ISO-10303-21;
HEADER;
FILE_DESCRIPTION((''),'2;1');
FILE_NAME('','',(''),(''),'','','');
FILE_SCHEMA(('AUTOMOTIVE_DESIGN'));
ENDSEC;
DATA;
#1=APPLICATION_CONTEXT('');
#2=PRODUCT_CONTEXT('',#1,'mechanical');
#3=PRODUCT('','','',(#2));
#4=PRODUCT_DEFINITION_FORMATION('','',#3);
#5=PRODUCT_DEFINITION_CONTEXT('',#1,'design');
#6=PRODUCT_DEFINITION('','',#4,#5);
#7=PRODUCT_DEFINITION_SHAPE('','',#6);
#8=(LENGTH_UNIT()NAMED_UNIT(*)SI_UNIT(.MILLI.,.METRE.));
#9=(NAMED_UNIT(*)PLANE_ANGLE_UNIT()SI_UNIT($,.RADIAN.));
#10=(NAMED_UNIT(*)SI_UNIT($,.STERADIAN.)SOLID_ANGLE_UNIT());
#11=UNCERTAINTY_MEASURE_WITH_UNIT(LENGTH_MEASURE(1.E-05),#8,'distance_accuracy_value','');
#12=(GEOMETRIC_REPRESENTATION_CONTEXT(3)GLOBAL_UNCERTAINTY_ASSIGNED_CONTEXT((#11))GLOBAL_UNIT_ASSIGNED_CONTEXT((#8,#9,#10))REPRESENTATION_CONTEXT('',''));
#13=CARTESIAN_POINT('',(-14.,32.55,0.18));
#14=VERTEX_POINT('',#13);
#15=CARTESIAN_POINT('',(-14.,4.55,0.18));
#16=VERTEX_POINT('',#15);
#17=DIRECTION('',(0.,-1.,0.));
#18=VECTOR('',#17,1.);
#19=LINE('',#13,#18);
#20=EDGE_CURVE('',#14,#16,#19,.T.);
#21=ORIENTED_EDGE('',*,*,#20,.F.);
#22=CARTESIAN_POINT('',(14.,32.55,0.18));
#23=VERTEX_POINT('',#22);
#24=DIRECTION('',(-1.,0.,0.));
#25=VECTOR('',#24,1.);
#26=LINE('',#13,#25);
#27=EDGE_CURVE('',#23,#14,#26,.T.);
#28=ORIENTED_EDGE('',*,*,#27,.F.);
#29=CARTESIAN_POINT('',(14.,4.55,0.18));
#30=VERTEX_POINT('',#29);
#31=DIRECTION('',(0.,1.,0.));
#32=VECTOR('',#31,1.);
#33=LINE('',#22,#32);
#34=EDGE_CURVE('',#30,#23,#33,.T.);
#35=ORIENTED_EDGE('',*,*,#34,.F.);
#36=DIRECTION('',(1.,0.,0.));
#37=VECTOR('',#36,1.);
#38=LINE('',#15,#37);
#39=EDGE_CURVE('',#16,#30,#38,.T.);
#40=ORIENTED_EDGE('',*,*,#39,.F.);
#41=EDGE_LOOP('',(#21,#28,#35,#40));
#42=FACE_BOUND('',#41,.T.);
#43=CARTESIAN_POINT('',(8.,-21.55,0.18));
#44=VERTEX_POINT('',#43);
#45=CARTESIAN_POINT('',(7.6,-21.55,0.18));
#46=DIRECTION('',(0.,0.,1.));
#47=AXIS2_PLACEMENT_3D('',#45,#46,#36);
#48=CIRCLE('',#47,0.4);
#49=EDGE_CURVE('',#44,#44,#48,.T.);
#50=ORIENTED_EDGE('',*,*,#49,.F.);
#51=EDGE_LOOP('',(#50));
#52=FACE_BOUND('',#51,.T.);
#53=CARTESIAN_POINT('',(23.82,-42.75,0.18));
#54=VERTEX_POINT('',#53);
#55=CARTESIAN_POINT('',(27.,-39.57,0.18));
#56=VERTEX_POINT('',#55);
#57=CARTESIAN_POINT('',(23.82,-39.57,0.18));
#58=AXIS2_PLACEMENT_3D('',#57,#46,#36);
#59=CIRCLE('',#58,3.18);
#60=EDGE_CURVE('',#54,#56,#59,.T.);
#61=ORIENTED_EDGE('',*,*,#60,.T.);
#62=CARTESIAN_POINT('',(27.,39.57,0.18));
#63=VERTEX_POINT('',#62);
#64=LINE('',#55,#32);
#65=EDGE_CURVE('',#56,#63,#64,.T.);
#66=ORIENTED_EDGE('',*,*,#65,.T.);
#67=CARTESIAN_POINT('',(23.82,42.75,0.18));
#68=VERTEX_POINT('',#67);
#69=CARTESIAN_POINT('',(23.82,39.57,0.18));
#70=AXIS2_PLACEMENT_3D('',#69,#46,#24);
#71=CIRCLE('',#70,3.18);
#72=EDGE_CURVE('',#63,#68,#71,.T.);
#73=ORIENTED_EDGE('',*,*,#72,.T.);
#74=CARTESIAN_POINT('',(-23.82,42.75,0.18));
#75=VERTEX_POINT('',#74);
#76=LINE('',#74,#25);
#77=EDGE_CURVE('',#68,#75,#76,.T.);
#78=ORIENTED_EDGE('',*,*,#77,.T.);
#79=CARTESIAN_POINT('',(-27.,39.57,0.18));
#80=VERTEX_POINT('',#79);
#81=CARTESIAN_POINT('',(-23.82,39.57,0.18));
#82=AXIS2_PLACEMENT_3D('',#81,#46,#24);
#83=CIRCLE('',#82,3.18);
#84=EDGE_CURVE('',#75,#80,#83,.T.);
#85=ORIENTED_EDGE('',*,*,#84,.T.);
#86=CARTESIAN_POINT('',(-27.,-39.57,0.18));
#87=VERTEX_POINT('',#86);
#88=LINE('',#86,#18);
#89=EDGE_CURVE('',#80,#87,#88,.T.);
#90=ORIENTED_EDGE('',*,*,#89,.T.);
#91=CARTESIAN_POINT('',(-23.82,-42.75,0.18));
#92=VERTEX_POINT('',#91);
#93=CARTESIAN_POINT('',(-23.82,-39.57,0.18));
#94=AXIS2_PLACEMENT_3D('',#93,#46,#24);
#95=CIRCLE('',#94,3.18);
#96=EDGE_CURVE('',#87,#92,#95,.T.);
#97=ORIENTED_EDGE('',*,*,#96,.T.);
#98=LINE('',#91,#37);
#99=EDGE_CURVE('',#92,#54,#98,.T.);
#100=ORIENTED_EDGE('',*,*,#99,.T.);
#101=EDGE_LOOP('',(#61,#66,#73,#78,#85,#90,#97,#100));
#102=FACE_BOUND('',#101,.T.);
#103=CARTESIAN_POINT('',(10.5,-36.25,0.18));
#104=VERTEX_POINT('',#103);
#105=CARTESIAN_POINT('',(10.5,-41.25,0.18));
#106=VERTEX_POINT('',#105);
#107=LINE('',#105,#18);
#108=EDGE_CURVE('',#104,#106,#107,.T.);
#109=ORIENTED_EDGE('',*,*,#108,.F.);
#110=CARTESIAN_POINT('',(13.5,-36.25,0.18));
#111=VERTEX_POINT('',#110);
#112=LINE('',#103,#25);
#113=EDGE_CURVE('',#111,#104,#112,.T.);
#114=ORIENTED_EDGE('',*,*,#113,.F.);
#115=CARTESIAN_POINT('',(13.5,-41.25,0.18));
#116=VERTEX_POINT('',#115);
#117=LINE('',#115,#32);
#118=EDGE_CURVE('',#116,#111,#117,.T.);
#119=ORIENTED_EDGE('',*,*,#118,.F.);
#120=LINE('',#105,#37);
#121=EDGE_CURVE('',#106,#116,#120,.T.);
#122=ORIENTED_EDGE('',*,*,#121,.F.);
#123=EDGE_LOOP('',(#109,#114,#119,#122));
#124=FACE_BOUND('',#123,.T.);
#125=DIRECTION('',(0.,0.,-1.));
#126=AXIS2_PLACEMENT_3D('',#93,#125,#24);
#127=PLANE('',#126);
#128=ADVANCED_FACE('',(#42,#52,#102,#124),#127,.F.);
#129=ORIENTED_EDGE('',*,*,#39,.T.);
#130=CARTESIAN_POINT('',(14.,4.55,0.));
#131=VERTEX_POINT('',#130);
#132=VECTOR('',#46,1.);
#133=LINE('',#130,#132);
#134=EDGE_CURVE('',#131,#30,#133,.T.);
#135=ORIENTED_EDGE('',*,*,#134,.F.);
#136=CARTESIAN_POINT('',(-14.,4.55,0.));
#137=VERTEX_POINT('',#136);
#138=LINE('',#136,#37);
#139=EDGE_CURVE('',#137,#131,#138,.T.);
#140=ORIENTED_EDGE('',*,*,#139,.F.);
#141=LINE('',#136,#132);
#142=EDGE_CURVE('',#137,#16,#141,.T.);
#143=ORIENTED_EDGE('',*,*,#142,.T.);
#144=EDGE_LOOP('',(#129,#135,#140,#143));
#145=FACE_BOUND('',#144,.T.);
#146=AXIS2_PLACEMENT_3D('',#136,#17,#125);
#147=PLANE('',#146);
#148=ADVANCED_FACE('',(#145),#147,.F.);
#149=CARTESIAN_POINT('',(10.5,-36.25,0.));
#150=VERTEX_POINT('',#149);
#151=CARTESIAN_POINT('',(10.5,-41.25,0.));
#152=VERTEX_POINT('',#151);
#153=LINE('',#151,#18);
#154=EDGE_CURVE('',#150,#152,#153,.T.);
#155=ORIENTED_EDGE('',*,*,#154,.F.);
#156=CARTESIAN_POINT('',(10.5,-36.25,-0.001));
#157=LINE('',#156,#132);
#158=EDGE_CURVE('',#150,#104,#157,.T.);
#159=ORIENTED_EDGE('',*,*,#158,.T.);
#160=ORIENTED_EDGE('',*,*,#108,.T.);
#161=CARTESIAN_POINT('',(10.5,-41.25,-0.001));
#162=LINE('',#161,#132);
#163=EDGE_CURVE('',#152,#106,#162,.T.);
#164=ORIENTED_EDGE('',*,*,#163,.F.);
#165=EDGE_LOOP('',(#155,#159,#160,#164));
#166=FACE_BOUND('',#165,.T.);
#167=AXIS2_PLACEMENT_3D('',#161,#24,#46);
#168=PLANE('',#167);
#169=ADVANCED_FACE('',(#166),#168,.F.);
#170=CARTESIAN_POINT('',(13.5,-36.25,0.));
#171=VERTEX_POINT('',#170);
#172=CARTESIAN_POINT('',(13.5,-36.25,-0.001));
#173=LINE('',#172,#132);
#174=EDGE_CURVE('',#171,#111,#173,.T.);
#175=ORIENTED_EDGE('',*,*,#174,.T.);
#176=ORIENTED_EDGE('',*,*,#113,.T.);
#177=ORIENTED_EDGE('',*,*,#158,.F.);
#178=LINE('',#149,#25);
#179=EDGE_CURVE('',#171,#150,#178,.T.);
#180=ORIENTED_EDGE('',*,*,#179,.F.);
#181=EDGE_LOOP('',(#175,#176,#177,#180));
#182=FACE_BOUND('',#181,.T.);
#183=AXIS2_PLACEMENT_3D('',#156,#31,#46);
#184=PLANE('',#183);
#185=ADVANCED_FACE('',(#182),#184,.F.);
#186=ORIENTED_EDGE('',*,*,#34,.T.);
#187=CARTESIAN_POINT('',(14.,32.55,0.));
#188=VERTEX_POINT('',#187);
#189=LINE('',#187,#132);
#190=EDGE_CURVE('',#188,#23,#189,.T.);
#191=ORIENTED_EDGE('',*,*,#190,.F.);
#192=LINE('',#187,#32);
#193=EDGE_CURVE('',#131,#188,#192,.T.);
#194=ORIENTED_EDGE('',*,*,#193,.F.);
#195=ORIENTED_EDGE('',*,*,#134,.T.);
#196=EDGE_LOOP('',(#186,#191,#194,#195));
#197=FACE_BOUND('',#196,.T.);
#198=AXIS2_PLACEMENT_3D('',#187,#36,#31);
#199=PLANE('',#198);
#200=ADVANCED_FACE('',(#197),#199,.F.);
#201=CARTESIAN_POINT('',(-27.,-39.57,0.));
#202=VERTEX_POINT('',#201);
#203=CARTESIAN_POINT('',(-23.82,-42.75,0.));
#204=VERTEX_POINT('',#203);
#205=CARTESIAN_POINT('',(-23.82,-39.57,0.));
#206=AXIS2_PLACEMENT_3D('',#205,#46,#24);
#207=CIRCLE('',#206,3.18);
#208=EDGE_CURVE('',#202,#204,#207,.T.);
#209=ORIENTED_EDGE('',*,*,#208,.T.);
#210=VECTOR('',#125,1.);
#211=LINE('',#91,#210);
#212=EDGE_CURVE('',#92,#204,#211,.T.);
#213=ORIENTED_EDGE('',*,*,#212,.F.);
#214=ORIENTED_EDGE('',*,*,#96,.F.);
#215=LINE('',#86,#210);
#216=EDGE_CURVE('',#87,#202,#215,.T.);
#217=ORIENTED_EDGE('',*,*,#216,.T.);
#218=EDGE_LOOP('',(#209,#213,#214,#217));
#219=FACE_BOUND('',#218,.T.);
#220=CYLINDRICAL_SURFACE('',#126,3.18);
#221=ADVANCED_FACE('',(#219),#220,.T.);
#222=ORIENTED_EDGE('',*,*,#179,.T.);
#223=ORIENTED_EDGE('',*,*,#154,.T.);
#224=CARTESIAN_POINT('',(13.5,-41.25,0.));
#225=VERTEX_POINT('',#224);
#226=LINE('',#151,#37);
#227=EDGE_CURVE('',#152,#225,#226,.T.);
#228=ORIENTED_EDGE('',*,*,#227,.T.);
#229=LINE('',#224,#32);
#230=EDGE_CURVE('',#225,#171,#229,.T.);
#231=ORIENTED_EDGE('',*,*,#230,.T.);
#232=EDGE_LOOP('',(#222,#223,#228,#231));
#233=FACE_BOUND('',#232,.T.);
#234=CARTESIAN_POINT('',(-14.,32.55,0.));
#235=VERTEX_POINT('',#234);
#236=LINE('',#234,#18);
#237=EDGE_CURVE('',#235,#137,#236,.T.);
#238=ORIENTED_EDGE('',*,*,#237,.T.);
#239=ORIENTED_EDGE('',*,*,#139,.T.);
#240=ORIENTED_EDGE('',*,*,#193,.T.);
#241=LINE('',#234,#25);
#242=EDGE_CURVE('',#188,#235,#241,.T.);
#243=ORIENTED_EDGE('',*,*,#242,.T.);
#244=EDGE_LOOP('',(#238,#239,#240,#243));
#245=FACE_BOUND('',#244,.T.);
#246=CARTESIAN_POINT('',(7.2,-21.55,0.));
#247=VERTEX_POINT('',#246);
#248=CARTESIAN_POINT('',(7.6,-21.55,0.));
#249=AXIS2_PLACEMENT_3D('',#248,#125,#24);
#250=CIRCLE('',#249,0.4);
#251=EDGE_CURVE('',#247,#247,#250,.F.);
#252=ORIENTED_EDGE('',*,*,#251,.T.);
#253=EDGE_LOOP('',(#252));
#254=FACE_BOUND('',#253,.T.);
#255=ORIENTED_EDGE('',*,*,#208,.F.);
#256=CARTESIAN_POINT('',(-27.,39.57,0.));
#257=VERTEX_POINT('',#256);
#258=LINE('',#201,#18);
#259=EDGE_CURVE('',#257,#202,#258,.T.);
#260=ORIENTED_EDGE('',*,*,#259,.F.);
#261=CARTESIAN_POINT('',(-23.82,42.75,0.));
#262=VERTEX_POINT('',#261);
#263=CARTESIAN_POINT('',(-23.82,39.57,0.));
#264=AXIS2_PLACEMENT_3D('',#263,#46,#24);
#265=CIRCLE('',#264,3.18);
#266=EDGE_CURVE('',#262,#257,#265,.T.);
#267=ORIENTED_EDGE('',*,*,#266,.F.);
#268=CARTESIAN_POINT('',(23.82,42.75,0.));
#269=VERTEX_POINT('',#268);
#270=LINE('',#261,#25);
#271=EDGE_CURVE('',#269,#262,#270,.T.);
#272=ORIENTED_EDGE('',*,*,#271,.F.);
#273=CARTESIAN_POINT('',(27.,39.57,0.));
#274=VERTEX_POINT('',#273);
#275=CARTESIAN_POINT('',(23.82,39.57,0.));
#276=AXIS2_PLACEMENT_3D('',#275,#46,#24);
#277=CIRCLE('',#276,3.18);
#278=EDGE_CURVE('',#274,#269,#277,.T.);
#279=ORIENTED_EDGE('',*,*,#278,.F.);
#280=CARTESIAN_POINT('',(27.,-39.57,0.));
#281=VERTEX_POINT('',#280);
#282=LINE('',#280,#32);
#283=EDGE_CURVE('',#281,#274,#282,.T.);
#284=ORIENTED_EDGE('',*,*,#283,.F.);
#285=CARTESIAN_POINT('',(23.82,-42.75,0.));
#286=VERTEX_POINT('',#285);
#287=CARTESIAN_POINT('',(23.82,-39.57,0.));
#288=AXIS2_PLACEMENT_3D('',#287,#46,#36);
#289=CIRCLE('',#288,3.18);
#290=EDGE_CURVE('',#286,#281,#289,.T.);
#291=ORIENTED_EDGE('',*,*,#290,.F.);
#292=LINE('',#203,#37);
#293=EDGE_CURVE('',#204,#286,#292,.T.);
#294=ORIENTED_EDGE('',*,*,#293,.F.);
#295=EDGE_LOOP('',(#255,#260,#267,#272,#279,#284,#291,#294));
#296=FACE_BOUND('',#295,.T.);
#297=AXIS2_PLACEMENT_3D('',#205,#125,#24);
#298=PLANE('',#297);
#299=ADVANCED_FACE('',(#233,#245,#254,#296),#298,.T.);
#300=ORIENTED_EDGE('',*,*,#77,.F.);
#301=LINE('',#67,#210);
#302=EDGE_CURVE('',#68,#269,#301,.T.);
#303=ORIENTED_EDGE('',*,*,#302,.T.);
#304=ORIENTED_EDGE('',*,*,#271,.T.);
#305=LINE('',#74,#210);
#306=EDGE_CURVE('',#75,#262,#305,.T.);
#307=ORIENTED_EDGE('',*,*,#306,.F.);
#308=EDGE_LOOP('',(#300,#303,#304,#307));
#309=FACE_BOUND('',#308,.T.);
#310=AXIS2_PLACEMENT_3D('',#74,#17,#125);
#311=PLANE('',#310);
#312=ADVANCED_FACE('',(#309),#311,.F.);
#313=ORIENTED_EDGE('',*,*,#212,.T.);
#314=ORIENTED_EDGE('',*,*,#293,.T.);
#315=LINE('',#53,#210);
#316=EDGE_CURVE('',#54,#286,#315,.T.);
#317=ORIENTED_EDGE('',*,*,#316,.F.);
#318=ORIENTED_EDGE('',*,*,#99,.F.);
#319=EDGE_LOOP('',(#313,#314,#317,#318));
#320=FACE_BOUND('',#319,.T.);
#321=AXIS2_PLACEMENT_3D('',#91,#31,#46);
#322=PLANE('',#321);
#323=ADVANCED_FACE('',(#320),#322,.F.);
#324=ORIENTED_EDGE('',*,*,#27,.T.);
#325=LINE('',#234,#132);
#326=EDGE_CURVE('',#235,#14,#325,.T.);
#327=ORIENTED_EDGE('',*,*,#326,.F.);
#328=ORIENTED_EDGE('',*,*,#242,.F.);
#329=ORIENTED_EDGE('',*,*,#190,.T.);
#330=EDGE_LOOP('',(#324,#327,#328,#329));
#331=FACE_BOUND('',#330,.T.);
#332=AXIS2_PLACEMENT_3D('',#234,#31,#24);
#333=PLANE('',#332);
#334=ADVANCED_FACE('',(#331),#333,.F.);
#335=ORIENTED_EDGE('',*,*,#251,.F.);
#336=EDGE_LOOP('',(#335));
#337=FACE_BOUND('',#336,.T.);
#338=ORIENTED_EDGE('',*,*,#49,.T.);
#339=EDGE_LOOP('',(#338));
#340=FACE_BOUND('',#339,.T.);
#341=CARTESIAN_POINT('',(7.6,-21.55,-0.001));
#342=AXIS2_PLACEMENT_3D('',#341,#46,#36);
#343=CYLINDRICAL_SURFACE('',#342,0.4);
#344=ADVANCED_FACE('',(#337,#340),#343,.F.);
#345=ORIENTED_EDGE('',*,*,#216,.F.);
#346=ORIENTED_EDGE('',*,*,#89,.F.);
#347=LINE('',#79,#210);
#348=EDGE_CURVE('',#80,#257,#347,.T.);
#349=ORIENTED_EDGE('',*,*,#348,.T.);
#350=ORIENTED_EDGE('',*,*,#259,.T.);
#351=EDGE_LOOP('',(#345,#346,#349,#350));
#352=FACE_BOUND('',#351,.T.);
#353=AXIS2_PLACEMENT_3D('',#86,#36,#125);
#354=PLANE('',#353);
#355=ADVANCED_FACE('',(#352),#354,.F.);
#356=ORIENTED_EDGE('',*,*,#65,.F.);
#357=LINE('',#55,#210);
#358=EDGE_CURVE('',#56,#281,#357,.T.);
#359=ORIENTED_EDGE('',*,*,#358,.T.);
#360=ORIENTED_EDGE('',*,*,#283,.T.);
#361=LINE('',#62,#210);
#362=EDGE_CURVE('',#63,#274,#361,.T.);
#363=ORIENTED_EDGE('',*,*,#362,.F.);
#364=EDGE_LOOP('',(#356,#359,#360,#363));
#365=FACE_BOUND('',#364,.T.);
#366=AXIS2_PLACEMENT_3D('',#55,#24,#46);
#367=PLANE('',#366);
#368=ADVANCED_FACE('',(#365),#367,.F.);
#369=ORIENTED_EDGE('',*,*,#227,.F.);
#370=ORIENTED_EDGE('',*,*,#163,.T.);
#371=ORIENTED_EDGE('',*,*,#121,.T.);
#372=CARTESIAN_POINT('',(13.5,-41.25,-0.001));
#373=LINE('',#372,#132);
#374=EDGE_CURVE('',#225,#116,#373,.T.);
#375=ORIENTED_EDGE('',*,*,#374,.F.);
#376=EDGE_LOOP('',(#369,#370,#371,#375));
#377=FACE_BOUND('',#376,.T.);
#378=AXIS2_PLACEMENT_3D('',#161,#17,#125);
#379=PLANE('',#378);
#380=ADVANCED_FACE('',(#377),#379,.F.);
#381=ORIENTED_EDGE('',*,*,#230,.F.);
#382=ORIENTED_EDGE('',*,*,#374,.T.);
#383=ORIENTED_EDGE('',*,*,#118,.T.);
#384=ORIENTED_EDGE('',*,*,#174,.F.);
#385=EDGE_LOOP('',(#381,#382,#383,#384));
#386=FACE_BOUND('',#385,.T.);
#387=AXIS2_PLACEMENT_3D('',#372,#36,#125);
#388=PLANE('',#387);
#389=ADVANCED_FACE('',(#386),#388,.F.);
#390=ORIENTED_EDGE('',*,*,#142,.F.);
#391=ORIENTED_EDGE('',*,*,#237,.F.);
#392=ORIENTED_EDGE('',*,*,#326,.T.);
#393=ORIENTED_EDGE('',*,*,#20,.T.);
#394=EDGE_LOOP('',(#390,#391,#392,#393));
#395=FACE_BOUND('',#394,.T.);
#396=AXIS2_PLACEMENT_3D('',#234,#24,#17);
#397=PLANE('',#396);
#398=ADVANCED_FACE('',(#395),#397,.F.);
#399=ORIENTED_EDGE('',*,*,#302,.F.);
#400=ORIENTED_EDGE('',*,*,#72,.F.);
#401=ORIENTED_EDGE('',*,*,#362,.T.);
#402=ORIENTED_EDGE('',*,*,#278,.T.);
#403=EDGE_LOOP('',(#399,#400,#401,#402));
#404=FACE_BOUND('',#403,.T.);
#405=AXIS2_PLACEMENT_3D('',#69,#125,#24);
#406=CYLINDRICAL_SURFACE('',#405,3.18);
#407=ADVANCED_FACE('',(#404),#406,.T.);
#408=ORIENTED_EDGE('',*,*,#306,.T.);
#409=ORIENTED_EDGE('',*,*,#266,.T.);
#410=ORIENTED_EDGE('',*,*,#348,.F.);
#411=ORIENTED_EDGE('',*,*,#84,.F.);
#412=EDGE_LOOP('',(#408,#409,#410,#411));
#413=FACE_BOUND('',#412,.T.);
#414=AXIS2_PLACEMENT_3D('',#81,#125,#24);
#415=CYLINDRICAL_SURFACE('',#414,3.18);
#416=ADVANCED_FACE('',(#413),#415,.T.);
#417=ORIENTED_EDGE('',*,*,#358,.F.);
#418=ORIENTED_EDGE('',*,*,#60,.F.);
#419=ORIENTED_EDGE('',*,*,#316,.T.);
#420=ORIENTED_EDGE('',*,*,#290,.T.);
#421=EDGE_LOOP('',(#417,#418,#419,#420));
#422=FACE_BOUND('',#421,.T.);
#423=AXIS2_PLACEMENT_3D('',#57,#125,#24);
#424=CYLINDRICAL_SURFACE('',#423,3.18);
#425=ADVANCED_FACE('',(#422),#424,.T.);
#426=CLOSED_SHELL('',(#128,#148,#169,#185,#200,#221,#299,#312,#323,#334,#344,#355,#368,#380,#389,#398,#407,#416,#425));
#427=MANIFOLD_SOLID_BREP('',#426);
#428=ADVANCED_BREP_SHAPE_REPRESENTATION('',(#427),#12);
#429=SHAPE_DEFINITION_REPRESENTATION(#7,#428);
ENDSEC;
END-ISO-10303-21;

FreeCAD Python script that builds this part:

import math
import FreeCAD as App
import Part
import Sketcher

V = App.Vector
Q = App.Units.Quantity

doc = App.newDocument("Part")
body = doc.addObject("PartDesign::Body", "Body")

# Sketch on XY plane
sketch1 = body.newObject("Sketcher::SketchObject", "Sketch")
sketch1.AttachmentSupport = (doc.getObject("XY_Plane"), [""])
sketch1.MapMode = "FlatFace"
sketch1.addGeometry([
    Part.LineSegment(V(-23.8, -42.8, 0), V(23.8, -42.8, 0)),  # 0
    Part.ArcOfCircle(Part.Circle(V(23.8, -39.6, 0), V(0, 0, 1), 3.2), math.radians(-90), math.radians(0)),  # 1
    Part.LineSegment(V(27, -39.6, 0), V(27, 39.6, 0)),  # 2
    Part.ArcOfCircle(Part.Circle(V(23.8, 39.6, 0), V(0, 0, 1), 3.2), math.radians(0), math.radians(90)),  # 3
    Part.LineSegment(V(23.8, 42.8, 0), V(-23.8, 42.8, 0)),  # 4
    Part.ArcOfCircle(Part.Circle(V(-23.8, 39.6, 0), V(0, 0, 1), 3.2), math.radians(90), math.radians(180)),  # 5
    Part.LineSegment(V(-27, 39.6, 0), V(-27, -39.6, 0)),  # 6
    Part.ArcOfCircle(Part.Circle(V(-23.8, -39.6, 0), V(0, 0, 1), 3.2), math.radians(-180), math.radians(-90)),  # 7
], False)
sketch1.addConstraint([
    Sketcher.Constraint("Tangent", 0, 2, 1, 1),
    Sketcher.Constraint("Tangent", 1, 2, 2, 1),
    Sketcher.Constraint("Tangent", 2, 2, 3, 1),
    Sketcher.Constraint("Tangent", 3, 2, 4, 1),
    Sketcher.Constraint("Tangent", 4, 2, 5, 1),
    Sketcher.Constraint("Tangent", 5, 2, 6, 1),
    Sketcher.Constraint("Tangent", 6, 2, 7, 1),
    Sketcher.Constraint("Tangent", 7, 2, 0, 1),
    Sketcher.Constraint("Horizontal", 0),
    Sketcher.Constraint("Vertical", 2),
    Sketcher.Constraint("Horizontal", 4),
    Sketcher.Constraint("Vertical", 6),
    Sketcher.Constraint("Equal", 1, 3),
    Sketcher.Constraint("Equal", 3, 5),
    Sketcher.Constraint("Equal", 5, 7),
    Sketcher.Constraint("Symmetric", 1, 3, 5, 3, -1, 1),
    Sketcher.Constraint("Radius", 1, Q("3.18 mm")),
    Sketcher.Constraint("DistanceX", -1, 1, 1, 2, Q("27 mm")),
    Sketcher.Constraint("DistanceY", 2, 1, 2, 2, Q("79.14 mm")),
])
pad1 = body.newObject("PartDesign::Pad", "Pad")
pad1.Profile = sketch1
pad1.Length = 0.18

# Sketch on XY plane
sketch2 = body.newObject("Sketcher::SketchObject", "Sketch001")
sketch2.AttachmentSupport = (doc.getObject("XY_Plane"), [""])
sketch2.MapMode = "FlatFace"
sketch2.AttachmentOffset = App.Placement(V(0, 0, 0.18), App.Rotation())
sketch2.addGeometry(Part.Circle(V(7.6, -21.55, 0), V(0, 0, 1), 0.4), False)
sketch2.addConstraint([
    Sketcher.Constraint("Diameter", 0, Q("0.8 mm")),
    Sketcher.Constraint("DistanceX", -1, 1, 0, 3, Q("7.6 mm")),
    Sketcher.Constraint("DistanceY", 0, 3, -1, 1, Q("21.55 mm")),
])
pocket1 = body.newObject("PartDesign::Pocket", "Pocket")
pocket1.Profile = sketch2
pocket1.Type = "UpToFirst"

# Sketch on XY plane
sketch3 = body.newObject("Sketcher::SketchObject", "Sketch002")
sketch3.AttachmentSupport = (doc.getObject("XY_Plane"), [""])
sketch3.MapMode = "FlatFace"
sketch3.AttachmentOffset = App.Placement(V(0, 0, 0.18), App.Rotation())
sketch3.addGeometry([
    Part.LineSegment(V(10.5, -36.2, 0), V(10.5, -41.2, 0)),
    Part.LineSegment(V(10.5, -41.2, 0), V(13.5, -41.2, 0)),
    Part.LineSegment(V(13.5, -41.2, 0), V(13.5, -36.2, 0)),
    Part.LineSegment(V(13.5, -36.2, 0), V(10.5, -36.2, 0)),
], False)
sketch3.addConstraint([
    Sketcher.Constraint("Coincident", 0, 2, 1, 1),
    Sketcher.Constraint("Coincident", 1, 2, 2, 1),
    Sketcher.Constraint("Coincident", 2, 2, 3, 1),
    Sketcher.Constraint("Coincident", 3, 2, 0, 1),
    Sketcher.Constraint("Vertical", 0),
    Sketcher.Constraint("Horizontal", 1),
    Sketcher.Constraint("Vertical", 2),
    Sketcher.Constraint("Horizontal", 3),
    Sketcher.Constraint("DistanceX", 1, 1, 1, 2, Q("3 mm")),
    Sketcher.Constraint("DistanceY", 0, 2, 0, 1, Q("5 mm")),
    Sketcher.Constraint("DistanceX", -1, 1, 0, 2, Q("10.5 mm")),
    Sketcher.Constraint("DistanceY", 0, 2, -1, 1, Q("41.25 mm")),
])
pocket2 = body.newObject("PartDesign::Pocket", "Pocket001")
pocket2.Profile = sketch3
pocket2.Type = "UpToFirst"

# Sketch on XY plane
sketch4 = body.newObject("Sketcher::SketchObject", "Sketch003")
sketch4.AttachmentSupport = (doc.getObject("XY_Plane"), [""])
sketch4.MapMode = "FlatFace"
sketch4.AttachmentOffset = App.Placement(V(0, 0, 0.18), App.Rotation())
sketch4.addGeometry([
    Part.LineSegment(V(-14, 33, 0), V(-14, 5, 0)),
    Part.LineSegment(V(-14, 5, 0), V(14, 5, 0)),
    Part.LineSegment(V(14, 5, 0), V(14, 33, 0)),
    Part.LineSegment(V(14, 33, 0), V(-14, 33, 0)),
], False)
sketch4.addConstraint([
    Sketcher.Constraint("Coincident", 0, 2, 1, 1),
    Sketcher.Constraint("Coincident", 1, 2, 2, 1),
    Sketcher.Constraint("Coincident", 2, 2, 3, 1),
    Sketcher.Constraint("Coincident", 3, 2, 0, 1),
    Sketcher.Constraint("Vertical", 0),
    Sketcher.Constraint("Horizontal", 1),
    Sketcher.Constraint("Vertical", 2),
    Sketcher.Constraint("Horizontal", 3),
    Sketcher.Constraint("Equal", 3, 0),
    Sketcher.Constraint("DistanceX", 1, 1, 1, 2, Q("28 mm")),
    Sketcher.Constraint("DistanceX", 0, 2, -1, 1, Q("14 mm")),
    Sketcher.Constraint("DistanceY", -1, 1, 0, 2, Q("4.55 mm")),
])
pocket3 = body.newObject("PartDesign::Pocket", "Pocket002")
pocket3.Profile = sketch4
pocket3.Length = 0.18

doc.recompute()
